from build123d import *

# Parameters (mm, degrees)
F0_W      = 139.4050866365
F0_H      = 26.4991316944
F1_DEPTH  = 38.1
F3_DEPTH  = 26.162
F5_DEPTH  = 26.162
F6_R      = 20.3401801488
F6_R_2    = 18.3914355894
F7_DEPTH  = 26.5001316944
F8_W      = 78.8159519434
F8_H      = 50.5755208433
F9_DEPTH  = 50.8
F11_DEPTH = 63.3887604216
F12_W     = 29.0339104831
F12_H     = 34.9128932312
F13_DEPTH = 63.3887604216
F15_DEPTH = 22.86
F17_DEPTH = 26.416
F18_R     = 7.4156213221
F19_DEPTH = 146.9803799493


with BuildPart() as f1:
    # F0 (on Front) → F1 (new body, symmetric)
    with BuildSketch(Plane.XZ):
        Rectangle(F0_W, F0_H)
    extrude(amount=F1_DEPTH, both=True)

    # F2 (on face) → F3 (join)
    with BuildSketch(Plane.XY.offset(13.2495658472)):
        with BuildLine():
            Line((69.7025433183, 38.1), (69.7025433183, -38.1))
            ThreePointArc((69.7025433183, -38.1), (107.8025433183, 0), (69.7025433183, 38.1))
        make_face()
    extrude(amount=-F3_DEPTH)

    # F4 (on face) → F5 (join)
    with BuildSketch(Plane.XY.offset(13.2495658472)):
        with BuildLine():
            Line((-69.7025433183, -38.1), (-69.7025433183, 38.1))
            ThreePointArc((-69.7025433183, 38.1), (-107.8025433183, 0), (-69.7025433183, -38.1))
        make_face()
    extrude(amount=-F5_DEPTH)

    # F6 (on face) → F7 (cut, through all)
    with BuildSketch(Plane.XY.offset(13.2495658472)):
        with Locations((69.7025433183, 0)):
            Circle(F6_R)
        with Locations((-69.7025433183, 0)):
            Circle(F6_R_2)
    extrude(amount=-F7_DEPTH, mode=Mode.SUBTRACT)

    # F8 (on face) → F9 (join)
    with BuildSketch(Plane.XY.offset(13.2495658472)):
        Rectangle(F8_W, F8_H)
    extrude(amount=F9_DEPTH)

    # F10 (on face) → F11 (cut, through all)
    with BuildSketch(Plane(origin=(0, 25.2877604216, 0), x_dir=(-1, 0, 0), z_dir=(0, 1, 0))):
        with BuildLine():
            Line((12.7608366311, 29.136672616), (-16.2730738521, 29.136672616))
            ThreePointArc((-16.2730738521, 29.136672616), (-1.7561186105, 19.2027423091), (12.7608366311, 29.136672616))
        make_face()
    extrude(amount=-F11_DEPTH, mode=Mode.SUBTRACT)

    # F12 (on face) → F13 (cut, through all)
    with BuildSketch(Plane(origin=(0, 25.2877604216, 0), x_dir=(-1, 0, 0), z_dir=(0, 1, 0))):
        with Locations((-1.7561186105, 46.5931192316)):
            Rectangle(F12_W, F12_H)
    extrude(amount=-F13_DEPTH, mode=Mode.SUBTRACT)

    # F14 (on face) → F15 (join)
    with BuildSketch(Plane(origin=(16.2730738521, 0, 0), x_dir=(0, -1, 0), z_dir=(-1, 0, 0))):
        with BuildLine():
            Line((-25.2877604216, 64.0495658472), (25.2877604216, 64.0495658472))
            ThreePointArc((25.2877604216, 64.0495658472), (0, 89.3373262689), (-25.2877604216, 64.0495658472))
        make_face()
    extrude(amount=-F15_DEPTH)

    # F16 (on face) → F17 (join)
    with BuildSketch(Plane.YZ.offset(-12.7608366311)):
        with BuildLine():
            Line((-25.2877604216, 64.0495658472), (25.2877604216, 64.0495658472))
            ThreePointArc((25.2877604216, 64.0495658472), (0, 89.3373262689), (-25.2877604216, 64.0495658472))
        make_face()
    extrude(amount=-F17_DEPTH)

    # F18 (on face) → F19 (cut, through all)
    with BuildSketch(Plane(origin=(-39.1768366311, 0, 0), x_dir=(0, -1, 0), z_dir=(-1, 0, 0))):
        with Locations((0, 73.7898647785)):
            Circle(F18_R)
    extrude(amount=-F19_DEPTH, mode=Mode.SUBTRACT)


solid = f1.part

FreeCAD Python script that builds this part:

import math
import FreeCAD as App
import Part
import Sketcher

V = App.Vector
Q = App.Units.Quantity


def add_polygon(sketch, points):
    """Adds a closed chain of lines whose ends are joined by coincident constraints."""
    first, n = sketch.GeometryCount, len(points)
    for a, b in zip(points, points[1:] + points[:1]):
        sketch.addGeometry(Part.LineSegment(App.Vector(*a, 0), App.Vector(*b, 0)), False)
    for i in range(n):
        sketch.addConstraint(Sketcher.Constraint("Coincident", first + i, 2, first + (i + 1) % n, 1))

doc = App.newDocument("Part")
body = doc.addObject("PartDesign::Body", "Body")

sketch1 = doc.addObject("Sketcher::SketchObject", "Sketch")
body.addObject(sketch1)
sketch1.AttachmentSupport = (doc.XZ_Plane, [""])
sketch1.MapMode = "FlatFace"
add_polygon(sketch1, [(-69.702543, 13.249566), (-69.702543, -13.249566), (69.702543, -13.249566), (69.702543, 13.249566)])
sketch1.addConstraint([
    Sketcher.Constraint("Vertical", 0),
    Sketcher.Constraint("Horizontal", 1),
    Sketcher.Constraint("Vertical", 2),
    Sketcher.Constraint("Horizontal", 3),
    Sketcher.Constraint("Symmetric", 0, 2, 2, 2, -1, 1),
    Sketcher.Constraint("DistanceY", 0, 2, 0, 1, Q("26.499132 mm")),
    Sketcher.Constraint("DistanceX", 1, 1, 1, 2, Q("139.405087 mm")),
])
pad1 = doc.addObject("PartDesign::Pad", "Pad")
body.addObject(pad1)
pad1.Profile = sketch1
pad1.Length = Q("3 in")
pad1.Midplane = True

sketch2 = doc.addObject("Sketcher::SketchObject", "Sketch001")
body.addObject(sketch2)
sketch2.AttachmentSupport = (doc.XY_Plane, [""])
sketch2.MapMode = "FlatFace"
sketch2.AttachmentOffset = App.Placement(V(0, 0, 13.249566), App.Rotation())
sketch2.addGeometry([
    Part.LineSegment(V(69.702543, 38.1, 0), V(69.702543, -38.1, 0)),
    Part.ArcOfCircle(Part.Circle(V(69.702543, 0, 0), V(0, 0, 1), 38.1), math.radians(-90), math.radians(90)),
], False)
sketch2.addConstraint([
    Sketcher.Constraint("Coincident", 0, 1, 1, 2),
    Sketcher.Constraint("Coincident", 1, 1, 0, 2),
    Sketcher.Constraint("Vertical", 0),
    Sketcher.Constraint("PointOnObject", 1, 3, -1),
    Sketcher.Constraint("Vertical", 1, 3, 0, 1),
    Sketcher.Constraint("Radius", 1, Q("1.5 in")),
    Sketcher.Constraint("DistanceX", -1, 1, 1, 3, Q("69.702543 mm")),
])
pad2 = doc.addObject("PartDesign::Pad", "Pad001")
body.addObject(pad2)
pad2.Profile = sketch2
pad2.Length = Q("1.03 in")
pad2.Reversed = True

sketch3 = doc.addObject("Sketcher::SketchObject", "Sketch002")
body.addObject(sketch3)
sketch3.AttachmentSupport = (doc.XY_Plane, [""])
sketch3.MapMode = "FlatFace"
sketch3.AttachmentOffset = App.Placement(V(0, 0, 13.249566), App.Rotation())
sketch3.addGeometry([
    Part.LineSegment(V(-69.702543, -38.1, 0), V(-69.702543, 38.1, 0)),
    Part.ArcOfCircle(Part.Circle(V(-69.702543, 0, 0), V(0, 0, 1), 38.1), math.radians(90), math.radians(270)),
], False)
sketch3.addConstraint([
    Sketcher.Constraint("Coincident", 0, 1, 1, 2),
    Sketcher.Constraint("Coincident", 1, 1, 0, 2),
    Sketcher.Constraint("Vertical", 0),
    Sketcher.Constraint("PointOnObject", 1, 3, -1),
    Sketcher.Constraint("Vertical", 1, 3, 0, 1),
    Sketcher.Constraint("Radius", 1, Q("1.5 in")),
    Sketcher.Constraint("DistanceX", 1, 3, -1, 1, Q("69.702543 mm")),
])
pad3 = doc.addObject("PartDesign::Pad", "Pad002")
body.addObject(pad3)
pad3.Profile = sketch3
pad3.Length = Q("1.03 in")
pad3.Reversed = True

sketch4 = doc.addObject("Sketcher::SketchObject", "Sketch003")
body.addObject(sketch4)
sketch4.AttachmentSupport = (doc.XY_Plane, [""])
sketch4.MapMode = "FlatFace"
sketch4.AttachmentOffset = App.Placement(V(0, 0, 13.249566), App.Rotation())
sketch4.addGeometry([
    Part.Circle(V(69.702543, 0, 0), V(0, 0, 1), 20.34018),
    Part.Circle(V(-69.702543, 0, 0), V(0, 0, 1), 18.391436),
], False)
sketch4.addConstraint([
    Sketcher.Constraint("Symmetric", 0, 3, 1, 3, -1, 1),
    Sketcher.Constraint("PointOnObject", 0, 3, -1),
    Sketcher.Constraint("Diameter", 0, Q("40.68036 mm")),
    Sketcher.Constraint("Diameter", 1, Q("36.782871 mm")),
    Sketcher.Constraint("DistanceX", -1, 1, 0, 3, Q("69.702543 mm")),
])
pocket1 = doc.addObject("PartDesign::Pocket", "Pocket")
body.addObject(pocket1)
pocket1.Profile = sketch4
pocket1.Type = "ThroughAll"

sketch5 = doc.addObject("Sketcher::SketchObject", "Sketch004")
body.addObject(sketch5)
sketch5.AttachmentSupport = (doc.XY_Plane, [""])
sketch5.MapMode = "FlatFace"
sketch5.AttachmentOffset = App.Placement(V(0, 0, 13.249566), App.Rotation())
add_polygon(sketch5, [(-39.407976, 25.28776), (-39.407976, -25.28776), (39.407976, -25.28776), (39.407976, 25.28776)])
sketch5.addConstraint([
    Sketcher.Constraint("Vertical", 0),
    Sketcher.Constraint("Horizontal", 1),
    Sketcher.Constraint("Vertical", 2),
    Sketcher.Constraint("Horizontal", 3),
    Sketcher.Constraint("Symmetric", 0, 2, 2, 2, -1, 1),
    Sketcher.Constraint("DistanceX", 1, 1, 1, 2, Q("78.815952 mm")),
    Sketcher.Constraint("DistanceY", 0, 2, 0, 1, Q("50.575521 mm")),
])
pad4 = doc.addObject("PartDesign::Pad", "Pad003")
body.addObject(pad4)
pad4.Profile = sketch5
pad4.Length = Q("2 in")

sketch6 = doc.addObject("Sketcher::SketchObject", "Sketch005")
body.addObject(sketch6)
sketch6.AttachmentSupport = (doc.XZ_Plane, [""])
sketch6.MapMode = "FlatFace"
sketch6.AttachmentOffset = App.Placement(V(0, 0, -25.28776), App.Rotation())
sketch6.addGeometry([
    Part.LineSegment(V(-12.760837, 29.136673, 0), V(16.273074, 29.136673, 0)),
    Part.ArcOfCircle(Part.Circle(V(1.756119, 34.776888, 0), V(0, 0, 1), 15.574146), math.radians(-158.767554), math.radians(-21.232446)),
], False)
sketch6.addConstraint([
    Sketcher.Constraint("Coincident", 0, 1, 1, 1),
    Sketcher.Constraint("Coincident", 1, 2, 0, 2),
    Sketcher.Constraint("Horizontal", 0),
    Sketcher.Constraint("Radius", 1, Q("15.574146 mm")),
    Sketcher.Constraint("DistanceX", 0, 1, 0, 2, Q("29.03391 mm")),
    Sketcher.Constraint("DistanceX", -1, 1, 1, 3, Q("1.756119 mm")),
    Sketcher.Constraint("DistanceY", -1, 1, 1, 3, Q("34.776888 mm")),
])
pocket2 = doc.addObject("PartDesign::Pocket", "Pocket001")
body.addObject(pocket2)
pocket2.Profile = sketch6
pocket2.Type = "ThroughAll"
pocket2.Reversed = True

sketch7 = doc.addObject("Sketcher::SketchObject", "Sketch006")
body.addObject(sketch7)
sketch7.AttachmentSupport = (doc.XZ_Plane, [""])
sketch7.MapMode = "FlatFace"
sketch7.AttachmentOffset = App.Placement(V(0, 0, -25.28776), App.Rotation())
add_polygon(sketch7, [(16.273074, 64.049566), (16.273074, 29.136673), (-12.760837, 29.136673), (-12.760837, 64.049566)])
sketch7.addConstraint([
    Sketcher.Constraint("Vertical", 0),
    Sketcher.Constraint("Horizontal", 1),
    Sketcher.Constraint("Vertical", 2),
    Sketcher.Constraint("Horizontal", 3),
    Sketcher.Constraint("DistanceX", 1, 2, 1, 1, Q("29.03391 mm")),
    Sketcher.Constraint("DistanceY", 0, 2, 0, 1, Q("34.912893 mm")),
    Sketcher.Constraint("DistanceX", -1, 1, 0, 2, Q("16.273074 mm")),
    Sketcher.Constraint("DistanceY", -1, 1, 0, 2, Q("29.136673 mm")),
])
pocket3 = doc.addObject("PartDesign::Pocket", "Pocket002")
body.addObject(pocket3)
pocket3.Profile = sketch7
pocket3.Type = "ThroughAll"
pocket3.Reversed = True

sketch8 = doc.addObject("Sketcher::SketchObject", "Sketch007")
body.addObject(sketch8)
sketch8.AttachmentSupport = (doc.YZ_Plane, [""])
sketch8.MapMode = "FlatFace"
sketch8.AttachmentOffset = App.Placement(V(0, 0, 16.273074), App.Rotation())
sketch8.addGeometry([
    Part.LineSegment(V(25.28776, 64.049566, 0), V(-25.28776, 64.049566, 0)),
    Part.ArcOfCircle(Part.Circle(V(0, 64.049566, 0), V(0, 0, 1), 25.28776), math.radians(0), math.radians(180)),
], False)
sketch8.addConstraint([
    Sketcher.Constraint("Coincident", 0, 1, 1, 1),
    Sketcher.Constraint("Coincident", 1, 2, 0, 2),
    Sketcher.Constraint("Horizontal", 0),
    Sketcher.Constraint("PointOnObject", 1, 3, -2),
    Sketcher.Constraint("Horizontal", 1, 3, 0, 1),
    Sketcher.Constraint("Radius", 1, Q("25.28776 mm")),
    Sketcher.Constraint("DistanceY", -1, 1, 1, 3, Q("64.049566 mm")),
])
pad5 = doc.addObject("PartDesign::Pad", "Pad004")
body.addObject(pad5)
pad5.Profile = sketch8
pad5.Length = Q("0.9 in")

sketch9 = doc.addObject("Sketcher::SketchObject", "Sketch008")
body.addObject(sketch9)
sketch9.AttachmentSupport = (doc.YZ_Plane, [""])
sketch9.MapMode = "FlatFace"
sketch9.AttachmentOffset = App.Placement(V(0, 0, -12.760837), App.Rotation())
sketch9.addGeometry([
    Part.LineSegment(V(-25.28776, 64.049566, 0), V(25.28776, 64.049566, 0)),
    Part.ArcOfCircle(Part.Circle(V(0, 64.049566, 0), V(0, 0, 1), 25.28776), math.radians(0), math.radians(180)),
], False)
sketch9.addConstraint([
    Sketcher.Constraint("Coincident", 0, 1, 1, 2),
    Sketcher.Constraint("Coincident", 1, 1, 0, 2),
    Sketcher.Constraint("Horizontal", 0),
    Sketcher.Constraint("PointOnObject", 1, 3, -2),
    Sketcher.Constraint("Horizontal", 1, 3, 0, 1),
    Sketcher.Constraint("Radius", 1, Q("25.28776 mm")),
    Sketcher.Constraint("DistanceY", -1, 1, 1, 3, Q("64.049566 mm")),
])
pad6 = doc.addObject("PartDesign::Pad", "Pad005")
body.addObject(pad6)
pad6.Profile = sketch9
pad6.Length = Q("1.04 in")
pad6.Reversed = True

sketch10 = doc.addObject("Sketcher::SketchObject", "Sketch009")
body.addObject(sketch10)
sketch10.AttachmentSupport = (doc.YZ_Plane, [""])
sketch10.MapMode = "FlatFace"
sketch10.AttachmentOffset = App.Placement(V(0, 0, -39.176837), App.Rotation())
sketch10.addGeometry(Part.Circle(V(0, 73.789865, 0), V(0, 0, 1), 7.415621), False)
sketch10.addConstraint([
    Sketcher.Constraint("PointOnObject", 0, 3, -2),
    Sketcher.Constraint("Diameter", 0, Q("14.831243 mm")),
    Sketcher.Constraint("DistanceY", -1, 1, 0, 3, Q("73.789865 mm")),
])
pocket4 = doc.addObject("PartDesign::Pocket", "Pocket003")
body.addObject(pocket4)
pocket4.Profile = sketch10
pocket4.Type = "ThroughAll"
pocket4.Reversed = True

doc.recompute()
